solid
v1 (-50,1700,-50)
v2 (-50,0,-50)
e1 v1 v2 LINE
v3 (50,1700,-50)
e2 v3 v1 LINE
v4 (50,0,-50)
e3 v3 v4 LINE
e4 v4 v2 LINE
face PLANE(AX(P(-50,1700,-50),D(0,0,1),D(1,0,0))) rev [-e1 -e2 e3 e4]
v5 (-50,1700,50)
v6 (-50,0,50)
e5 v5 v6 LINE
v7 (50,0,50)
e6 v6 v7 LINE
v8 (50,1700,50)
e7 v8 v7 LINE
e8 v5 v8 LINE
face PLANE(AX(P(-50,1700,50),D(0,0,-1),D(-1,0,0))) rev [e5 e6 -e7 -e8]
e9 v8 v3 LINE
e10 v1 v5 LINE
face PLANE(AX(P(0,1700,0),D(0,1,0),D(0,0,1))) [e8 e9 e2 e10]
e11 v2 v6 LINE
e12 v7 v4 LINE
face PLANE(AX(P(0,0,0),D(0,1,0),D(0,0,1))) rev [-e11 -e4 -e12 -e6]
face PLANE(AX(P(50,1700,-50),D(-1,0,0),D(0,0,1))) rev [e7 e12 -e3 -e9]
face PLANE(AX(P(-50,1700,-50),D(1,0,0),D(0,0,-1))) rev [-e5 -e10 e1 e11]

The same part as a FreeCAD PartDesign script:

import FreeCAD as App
import Part
import Sketcher
from FreeCAD import Vector
Q = App.Units.Quantity

doc = App.newDocument("Part")
body = doc.addObject("PartDesign::Body", "Body")

# Sketch on XZ plane
sketch1 = body.newObject("Sketcher::SketchObject", "Sketch")
sketch1.AttachmentSupport = (doc.getObject("XZ_Plane"), [""])
sketch1.MapMode = "FlatFace"
sketch1.addGeometry([
    Part.LineSegment(Vector(-50, -50, 0), Vector(-50, 50, 0)),
    Part.LineSegment(Vector(-50, 50, 0), Vector(50, 50, 0)),
    Part.LineSegment(Vector(50, 50, 0), Vector(50, -50, 0)),
    Part.LineSegment(Vector(50, -50, 0), Vector(-50, -50, 0)),
], False)
sketch1.addConstraint([
    Sketcher.Constraint("Coincident", 0, 2, 1, 1),
    Sketcher.Constraint("Coincident", 1, 2, 2, 1),
    Sketcher.Constraint("Coincident", 2, 2, 3, 1),
    Sketcher.Constraint("Coincident", 3, 2, 0, 1),
    Sketcher.Constraint("Vertical", 0),
    Sketcher.Constraint("Horizontal", 1),
    Sketcher.Constraint("Vertical", 2),
    Sketcher.Constraint("Horizontal", 3),
    Sketcher.Constraint("Symmetric", 0, 2, 2, 2, -1, 1),
    Sketcher.Constraint("Equal", 3, 0),
    Sketcher.Constraint("DistanceX", 1, 1, 1, 2, Q("100 mm")),
])
pad1 = body.newObject("PartDesign::Pad", "Pad")
pad1.Profile = sketch1
pad1.Length = 1700
pad1.Reversed = True

doc.recompute()
